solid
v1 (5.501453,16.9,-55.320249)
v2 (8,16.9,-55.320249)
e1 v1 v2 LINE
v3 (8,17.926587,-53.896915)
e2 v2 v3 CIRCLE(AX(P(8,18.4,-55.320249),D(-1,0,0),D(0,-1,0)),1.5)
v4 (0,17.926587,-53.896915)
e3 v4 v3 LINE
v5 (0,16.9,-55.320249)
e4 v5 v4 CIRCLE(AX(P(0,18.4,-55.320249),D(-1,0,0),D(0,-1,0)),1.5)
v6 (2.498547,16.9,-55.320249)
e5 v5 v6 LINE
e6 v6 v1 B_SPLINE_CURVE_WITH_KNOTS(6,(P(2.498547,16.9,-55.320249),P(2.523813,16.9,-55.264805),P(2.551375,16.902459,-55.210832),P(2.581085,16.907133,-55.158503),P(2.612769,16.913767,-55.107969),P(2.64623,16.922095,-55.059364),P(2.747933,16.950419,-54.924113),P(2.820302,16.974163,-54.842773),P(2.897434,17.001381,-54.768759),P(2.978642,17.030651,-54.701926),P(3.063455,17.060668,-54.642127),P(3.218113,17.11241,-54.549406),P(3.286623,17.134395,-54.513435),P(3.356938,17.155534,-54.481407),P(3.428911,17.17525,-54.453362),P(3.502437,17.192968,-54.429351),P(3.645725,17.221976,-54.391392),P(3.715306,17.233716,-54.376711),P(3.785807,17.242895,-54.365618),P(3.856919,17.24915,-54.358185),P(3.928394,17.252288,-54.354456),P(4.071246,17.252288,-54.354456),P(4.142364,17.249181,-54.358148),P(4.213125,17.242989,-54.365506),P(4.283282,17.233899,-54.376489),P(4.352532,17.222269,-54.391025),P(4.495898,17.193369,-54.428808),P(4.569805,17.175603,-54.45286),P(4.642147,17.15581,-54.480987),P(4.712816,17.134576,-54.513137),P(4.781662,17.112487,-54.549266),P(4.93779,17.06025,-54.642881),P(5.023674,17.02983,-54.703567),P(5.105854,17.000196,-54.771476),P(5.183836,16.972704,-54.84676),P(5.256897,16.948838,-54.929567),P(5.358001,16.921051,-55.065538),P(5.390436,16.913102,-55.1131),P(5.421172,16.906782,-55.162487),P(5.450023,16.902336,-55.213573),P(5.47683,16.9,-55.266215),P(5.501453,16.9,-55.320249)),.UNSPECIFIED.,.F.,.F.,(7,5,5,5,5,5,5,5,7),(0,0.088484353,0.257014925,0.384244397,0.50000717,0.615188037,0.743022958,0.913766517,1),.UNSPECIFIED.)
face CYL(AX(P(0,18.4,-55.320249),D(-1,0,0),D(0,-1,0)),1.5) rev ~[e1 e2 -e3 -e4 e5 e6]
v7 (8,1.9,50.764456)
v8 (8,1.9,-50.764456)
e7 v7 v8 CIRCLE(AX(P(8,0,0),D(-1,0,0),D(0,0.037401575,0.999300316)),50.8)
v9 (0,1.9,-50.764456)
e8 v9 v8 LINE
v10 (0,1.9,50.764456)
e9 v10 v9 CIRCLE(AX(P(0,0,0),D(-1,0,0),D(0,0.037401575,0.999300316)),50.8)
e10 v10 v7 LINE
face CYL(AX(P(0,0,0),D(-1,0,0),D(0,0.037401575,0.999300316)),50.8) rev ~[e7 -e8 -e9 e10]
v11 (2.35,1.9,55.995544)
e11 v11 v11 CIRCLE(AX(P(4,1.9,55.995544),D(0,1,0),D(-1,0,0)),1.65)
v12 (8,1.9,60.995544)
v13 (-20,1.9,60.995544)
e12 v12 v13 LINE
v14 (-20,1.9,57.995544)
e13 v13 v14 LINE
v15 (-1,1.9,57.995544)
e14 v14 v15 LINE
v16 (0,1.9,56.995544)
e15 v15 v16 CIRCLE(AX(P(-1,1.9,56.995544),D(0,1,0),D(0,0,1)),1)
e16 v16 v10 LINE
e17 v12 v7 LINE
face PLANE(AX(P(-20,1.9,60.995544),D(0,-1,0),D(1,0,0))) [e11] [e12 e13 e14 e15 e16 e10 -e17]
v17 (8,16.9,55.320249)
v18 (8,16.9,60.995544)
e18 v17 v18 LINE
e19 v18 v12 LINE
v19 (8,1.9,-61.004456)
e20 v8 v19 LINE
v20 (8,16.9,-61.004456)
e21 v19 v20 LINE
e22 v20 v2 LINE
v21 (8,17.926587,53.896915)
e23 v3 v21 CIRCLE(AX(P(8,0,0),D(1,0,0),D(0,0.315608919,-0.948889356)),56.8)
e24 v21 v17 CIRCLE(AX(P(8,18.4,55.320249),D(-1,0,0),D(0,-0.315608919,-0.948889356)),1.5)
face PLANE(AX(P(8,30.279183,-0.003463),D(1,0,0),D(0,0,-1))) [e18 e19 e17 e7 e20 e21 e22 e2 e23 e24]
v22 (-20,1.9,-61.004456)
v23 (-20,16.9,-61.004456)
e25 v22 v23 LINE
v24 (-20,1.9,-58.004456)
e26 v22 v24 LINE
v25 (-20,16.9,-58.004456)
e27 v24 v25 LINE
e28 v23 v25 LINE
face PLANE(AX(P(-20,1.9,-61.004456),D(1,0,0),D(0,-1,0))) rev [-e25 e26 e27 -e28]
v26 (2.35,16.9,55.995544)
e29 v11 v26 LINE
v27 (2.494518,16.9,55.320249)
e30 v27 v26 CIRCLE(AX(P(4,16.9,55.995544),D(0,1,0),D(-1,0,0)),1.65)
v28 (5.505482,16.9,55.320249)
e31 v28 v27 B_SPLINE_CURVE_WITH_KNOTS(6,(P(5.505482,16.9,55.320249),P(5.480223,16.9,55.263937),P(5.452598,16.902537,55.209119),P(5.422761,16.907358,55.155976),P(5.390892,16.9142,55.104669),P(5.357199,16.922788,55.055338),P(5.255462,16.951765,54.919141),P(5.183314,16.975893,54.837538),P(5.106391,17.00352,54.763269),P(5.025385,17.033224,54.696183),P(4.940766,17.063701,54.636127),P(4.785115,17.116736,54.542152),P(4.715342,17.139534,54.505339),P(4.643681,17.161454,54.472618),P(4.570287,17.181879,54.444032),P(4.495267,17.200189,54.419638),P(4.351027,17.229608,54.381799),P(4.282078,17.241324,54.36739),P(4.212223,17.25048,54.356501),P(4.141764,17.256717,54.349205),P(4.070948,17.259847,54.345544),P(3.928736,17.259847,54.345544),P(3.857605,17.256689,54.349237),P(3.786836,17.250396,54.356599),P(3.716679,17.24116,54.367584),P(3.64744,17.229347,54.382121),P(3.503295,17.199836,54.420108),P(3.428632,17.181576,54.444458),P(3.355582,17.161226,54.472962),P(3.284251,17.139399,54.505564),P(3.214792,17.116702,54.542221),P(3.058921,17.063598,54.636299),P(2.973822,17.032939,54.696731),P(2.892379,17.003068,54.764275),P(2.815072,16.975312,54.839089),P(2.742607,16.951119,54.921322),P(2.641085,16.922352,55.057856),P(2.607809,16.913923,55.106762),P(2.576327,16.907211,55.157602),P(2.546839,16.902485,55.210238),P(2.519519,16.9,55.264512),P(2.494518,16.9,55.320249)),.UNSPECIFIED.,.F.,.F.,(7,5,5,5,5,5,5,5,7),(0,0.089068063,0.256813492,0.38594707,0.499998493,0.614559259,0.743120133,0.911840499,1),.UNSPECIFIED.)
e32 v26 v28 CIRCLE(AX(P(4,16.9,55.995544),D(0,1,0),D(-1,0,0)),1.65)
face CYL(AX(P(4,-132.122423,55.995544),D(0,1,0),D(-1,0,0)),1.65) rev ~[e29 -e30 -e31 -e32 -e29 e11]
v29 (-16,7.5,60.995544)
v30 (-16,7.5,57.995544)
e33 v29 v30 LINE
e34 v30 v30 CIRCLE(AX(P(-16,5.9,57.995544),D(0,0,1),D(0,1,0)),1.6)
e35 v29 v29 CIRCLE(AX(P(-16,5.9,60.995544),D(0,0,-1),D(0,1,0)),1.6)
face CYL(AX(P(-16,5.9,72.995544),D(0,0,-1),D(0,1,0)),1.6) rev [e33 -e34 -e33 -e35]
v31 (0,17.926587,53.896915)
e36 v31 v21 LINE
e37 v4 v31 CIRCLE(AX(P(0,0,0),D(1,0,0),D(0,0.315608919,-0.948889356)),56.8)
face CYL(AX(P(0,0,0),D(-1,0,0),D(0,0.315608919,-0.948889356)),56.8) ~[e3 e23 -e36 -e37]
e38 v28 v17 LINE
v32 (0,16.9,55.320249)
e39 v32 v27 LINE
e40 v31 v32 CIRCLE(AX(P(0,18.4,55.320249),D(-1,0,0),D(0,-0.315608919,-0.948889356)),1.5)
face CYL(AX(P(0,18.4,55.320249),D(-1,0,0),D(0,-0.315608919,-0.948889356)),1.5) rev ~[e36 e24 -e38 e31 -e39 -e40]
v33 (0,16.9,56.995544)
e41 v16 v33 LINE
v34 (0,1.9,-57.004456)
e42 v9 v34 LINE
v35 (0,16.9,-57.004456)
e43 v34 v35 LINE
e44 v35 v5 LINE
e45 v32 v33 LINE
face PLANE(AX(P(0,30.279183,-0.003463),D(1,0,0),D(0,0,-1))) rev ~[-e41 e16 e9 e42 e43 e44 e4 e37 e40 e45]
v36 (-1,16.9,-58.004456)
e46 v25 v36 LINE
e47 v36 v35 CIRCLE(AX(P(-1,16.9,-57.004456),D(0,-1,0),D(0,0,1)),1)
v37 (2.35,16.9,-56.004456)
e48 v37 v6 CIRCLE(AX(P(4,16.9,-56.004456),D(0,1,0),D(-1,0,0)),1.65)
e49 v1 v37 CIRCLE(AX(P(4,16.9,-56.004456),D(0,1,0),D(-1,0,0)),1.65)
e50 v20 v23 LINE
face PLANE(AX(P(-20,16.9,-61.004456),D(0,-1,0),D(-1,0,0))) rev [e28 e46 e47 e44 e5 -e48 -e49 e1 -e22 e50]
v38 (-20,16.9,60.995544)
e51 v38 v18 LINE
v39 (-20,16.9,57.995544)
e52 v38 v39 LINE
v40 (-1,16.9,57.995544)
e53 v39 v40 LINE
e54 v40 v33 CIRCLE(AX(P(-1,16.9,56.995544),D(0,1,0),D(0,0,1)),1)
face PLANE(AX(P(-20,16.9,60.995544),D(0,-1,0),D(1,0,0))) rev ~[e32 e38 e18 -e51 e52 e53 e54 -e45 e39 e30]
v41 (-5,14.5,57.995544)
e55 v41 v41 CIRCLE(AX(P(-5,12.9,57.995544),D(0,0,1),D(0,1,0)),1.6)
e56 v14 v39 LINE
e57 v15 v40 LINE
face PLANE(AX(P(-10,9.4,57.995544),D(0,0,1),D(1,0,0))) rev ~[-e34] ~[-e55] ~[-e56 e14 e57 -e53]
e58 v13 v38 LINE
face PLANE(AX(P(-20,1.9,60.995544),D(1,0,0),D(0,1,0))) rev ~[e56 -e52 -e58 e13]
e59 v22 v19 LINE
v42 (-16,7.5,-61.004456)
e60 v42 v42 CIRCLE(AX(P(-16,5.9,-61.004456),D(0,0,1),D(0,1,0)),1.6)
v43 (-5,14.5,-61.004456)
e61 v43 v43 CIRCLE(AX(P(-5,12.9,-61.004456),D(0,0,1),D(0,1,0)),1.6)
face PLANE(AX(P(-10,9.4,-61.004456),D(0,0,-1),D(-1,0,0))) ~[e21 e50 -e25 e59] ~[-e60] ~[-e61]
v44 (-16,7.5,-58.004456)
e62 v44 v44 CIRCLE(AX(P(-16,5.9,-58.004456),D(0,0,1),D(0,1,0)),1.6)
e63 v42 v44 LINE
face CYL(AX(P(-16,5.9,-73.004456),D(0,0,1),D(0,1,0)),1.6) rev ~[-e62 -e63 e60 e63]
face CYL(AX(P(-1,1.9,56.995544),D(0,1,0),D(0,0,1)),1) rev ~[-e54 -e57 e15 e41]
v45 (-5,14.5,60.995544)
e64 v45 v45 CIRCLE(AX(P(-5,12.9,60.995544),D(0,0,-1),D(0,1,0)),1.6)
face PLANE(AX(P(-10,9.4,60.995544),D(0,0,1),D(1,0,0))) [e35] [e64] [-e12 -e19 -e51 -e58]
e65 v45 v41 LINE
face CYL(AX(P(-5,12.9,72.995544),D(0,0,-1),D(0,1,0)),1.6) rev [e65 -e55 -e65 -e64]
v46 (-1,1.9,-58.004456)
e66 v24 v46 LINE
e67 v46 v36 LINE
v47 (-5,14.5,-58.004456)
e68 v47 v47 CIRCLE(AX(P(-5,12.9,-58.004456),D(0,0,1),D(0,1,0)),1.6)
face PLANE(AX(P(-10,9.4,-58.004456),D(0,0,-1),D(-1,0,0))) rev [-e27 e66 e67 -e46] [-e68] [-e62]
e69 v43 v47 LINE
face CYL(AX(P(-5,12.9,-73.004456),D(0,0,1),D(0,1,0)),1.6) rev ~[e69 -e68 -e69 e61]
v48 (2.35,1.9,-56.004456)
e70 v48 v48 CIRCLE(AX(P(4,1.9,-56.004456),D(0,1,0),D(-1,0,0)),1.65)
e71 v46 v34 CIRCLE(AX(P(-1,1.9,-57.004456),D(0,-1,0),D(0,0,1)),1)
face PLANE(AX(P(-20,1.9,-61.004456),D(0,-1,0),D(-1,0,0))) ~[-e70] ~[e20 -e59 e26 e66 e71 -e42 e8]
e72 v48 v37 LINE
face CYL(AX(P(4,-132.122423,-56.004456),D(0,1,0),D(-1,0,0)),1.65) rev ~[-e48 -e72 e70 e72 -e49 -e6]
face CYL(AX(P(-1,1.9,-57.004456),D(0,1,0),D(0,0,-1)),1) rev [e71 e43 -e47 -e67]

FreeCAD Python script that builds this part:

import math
import FreeCAD as App
import Part
import Sketcher
from FreeCAD import Vector
Q = App.Units.Quantity


def edges_at(feature, points):
    """Names of the edges that pass closest to the given points."""
    edges = feature.Shape.Edges
    near = lambda p: min(range(len(edges)), key=lambda i: edges[i].distToShape(Part.Vertex(*p))[0])
    return sorted({f"Edge{near(p) + 1}" for p in points})


def add_polygon(sketch, points):
    """Adds a closed chain of lines whose ends are joined by coincident constraints."""
    first, n = sketch.GeometryCount, len(points)
    for a, b in zip(points, points[1:] + points[:1]):
        sketch.addGeometry(Part.LineSegment(App.Vector(*a, 0), App.Vector(*b, 0)), False)
    for i in range(n):
        sketch.addConstraint(Sketcher.Constraint("Coincident", first + i, 2, first + (i + 1) % n, 1))

doc = App.newDocument("Part")
body = doc.addObject("PartDesign::Body", "Body")

# Sketch on YZ plane
sketch1 = body.newObject("Sketcher::SketchObject", "Sketch")
sketch1.AttachmentSupport = (doc.getObject("YZ_Plane"), [""])
sketch1.MapMode = "FlatFace"
sketch1.addGeometry([
    Part.LineSegment(Vector(1.9, 60.995544, 0), Vector(1.9, 50.764456, 0)),  # 0
    Part.ArcOfCircle(Part.Circle(Vector(0, 0, 0), Vector(0, 0, 1), 50.8), math.radians(-87.856548), math.radians(87.856548)),  # 1
    Part.LineSegment(Vector(1.9, -50.764456, 0), Vector(1.9, -61.004456, 0)),  # 2
    Part.LineSegment(Vector(1.9, -61.004456, 0), Vector(16.9, -61.004456, 0)),  # 3
    Part.LineSegment(Vector(16.9, -61.004456, 0), Vector(16.9, -55.320249, 0)),  # 4
    Part.ArcOfCircle(Part.Circle(Vector(18.4, -55.320249, 0), Vector(0, 0, 1), 1.5), math.radians(108.397578), math.radians(180)),  # 5
    Part.ArcOfCircle(Part.Circle(Vector(0, 0, 0), Vector(0, 0, 1), 56.8), math.radians(-71.602422), math.radians(71.602422)),  # 6
    Part.ArcOfCircle(Part.Circle(Vector(18.4, 55.320249, 0), Vector(0, 0, 1), 1.5), math.radians(180), math.radians(251.602422)),  # 7
    Part.LineSegment(Vector(16.9, 55.320249, 0), Vector(16.9, 60.995544, 0)),  # 8
    Part.LineSegment(Vector(16.9, 60.995544, 0), Vector(1.9, 60.995544, 0)),  # 9
], False)
sketch1.addConstraint([
    Sketcher.Constraint("Coincident", 0, 2, 1, 2),
    Sketcher.Constraint("Coincident", 1, 1, 2, 1),
    Sketcher.Constraint("Coincident", 2, 2, 3, 1),
    Sketcher.Constraint("Coincident", 3, 2, 4, 1),
    Sketcher.Constraint("Tangent", 4, 2, 5, 2),
    Sketcher.Constraint("Tangent", 5, 1, 6, 1),
    Sketcher.Constraint("Tangent", 6, 2, 7, 2),
    Sketcher.Constraint("Tangent", 7, 1, 8, 1),
    Sketcher.Constraint("Coincident", 8, 2, 9, 1),
    Sketcher.Constraint("Coincident", 9, 2, 0, 1),
    Sketcher.Constraint("Vertical", 0),
    Sketcher.Constraint("Vertical", 2),
    Sketcher.Constraint("Horizontal", 3),
    Sketcher.Constraint("Vertical", 4),
    Sketcher.Constraint("Vertical", 8),
    Sketcher.Constraint("Horizontal", 9),
    Sketcher.Constraint("Coincident", 1, 3, -1, 1),
    Sketcher.Constraint("Coincident", 6, 3, -1, 1),
    Sketcher.Constraint("Equal", 5, 7),
    Sketcher.Constraint("Vertical", 5, 3, 7, 3),
    Sketcher.Constraint("Vertical", 0, 2, 1, 1),
    Sketcher.Constraint("Radius", 1, Q("50.8 mm")),
    Sketcher.Constraint("Radius", 5, Q("1.5 mm")),
    Sketcher.Constraint("Radius", 6, Q("56.8 mm")),
    Sketcher.Constraint("DistanceX", 3, 1, 3, 2, Q("15 mm")),
    Sketcher.Constraint("DistanceY", 2, 2, 2, 1, Q("10.24 mm")),
    Sketcher.Constraint("DistanceX", -1, 1, 5, 3, Q("18.4 mm")),
    Sketcher.Constraint("DistanceY", 0, 2, 0, 1, Q("10.231088 mm")),
])
pad1 = body.newObject("PartDesign::Pad", "Pad")
pad1.Profile = sketch1
pad1.Length = 8

# Sketch on XZ plane
sketch2 = body.newObject("Sketcher::SketchObject", "Sketch001")
sketch2.AttachmentSupport = (doc.getObject("XZ_Plane"), [""])
sketch2.MapMode = "FlatFace"
sketch2.AttachmentOffset = App.Placement(Vector(0, 0, -1.9), App.Rotation())
sketch2.addGeometry([
    Part.Circle(Vector(4, -56.004456, 0), Vector(0, 0, 1), 1.65),
    Part.Circle(Vector(4, 55.995544, 0), Vector(0, 0, 1), 1.65),
], False)
sketch2.addConstraint([
    Sketcher.Constraint("Equal", 0, 1),
    Sketcher.Constraint("Vertical", 0, 3, 1, 3),
    Sketcher.Constraint("Diameter", 0, Q("3.3 mm")),
    Sketcher.Constraint("DistanceX", -1, 1, 0, 3, Q("4 mm")),
    Sketcher.Constraint("DistanceY", 0, 3, 1, 3, Q("112 mm")),
    Sketcher.Constraint("DistanceY", 0, 3, -1, 1, Q("56.004456 mm")),
])
doc.recompute()
hole = body.newObject("PartDesign::Hole", "Hole")
hole.Profile = sketch2
hole.ThreadType = "None"
hole.Diameter = 3.3
hole.DepthType = "ThroughAll"

# Sketch on XY plane
sketch3 = body.newObject("Sketcher::SketchObject", "Sketch002")
sketch3.AttachmentSupport = (doc.getObject("XY_Plane"), [""])
sketch3.MapMode = "FlatFace"
sketch3.AttachmentOffset = App.Placement(Vector(0, 0, 60.995544), App.Rotation())
add_polygon(sketch3, [(-20, 16.9), (-20, 1.9), (0, 1.9), (0, 16.9)])  # lines 0-3
sketch3.addConstraint([
    Sketcher.Constraint("Vertical", 0),
    Sketcher.Constraint("Horizontal", 1),
    Sketcher.Constraint("Vertical", 2),
    Sketcher.Constraint("Horizontal", 3),
    Sketcher.Constraint("PointOnObject", 1, 2, -2),
    Sketcher.Constraint("DistanceX", 1, 1, 1, 2, Q("20 mm")),
    Sketcher.Constraint("DistanceY", 0, 2, 0, 1, Q("15 mm")),
    Sketcher.Constraint("DistanceY", -1, 1, 0, 2, Q("1.9 mm")),
])
pad2 = body.newObject("PartDesign::Pad", "Pad001")
pad2.Profile = sketch3
pad2.Length = 3
pad2.Reversed = True
doc.recompute()

fillet = body.newObject("PartDesign::Fillet", "Fillet")
fillet.Base = (pad2, edges_at(pad2, [(0, 9.4, 57.996)]))
fillet.Radius = 1

# Sketch on YZ plane
sketch4 = body.newObject("Sketcher::SketchObject", "Sketch003")
sketch4.AttachmentSupport = (doc.getObject("YZ_Plane"), [""])
sketch4.MapMode = "FlatFace"
sketch4.AttachmentOffset = App.Placement(Vector(0, 0, -5), App.Rotation())
add_polygon(sketch4, [(12.9, 73.956921), (12.9, 57.995544), (14.5, 57.995544), (14.5, 72.995544)])  # lines 0-3
sketch4.addGeometry(Part.LineSegment(Vector(12.9, 57.995544, 0), Vector(12.9, 73.956921, 0)), True)  # axis
sketch4.addConstraint([
    Sketcher.Constraint("Vertical", 0),
    Sketcher.Constraint("Horizontal", 1),
    Sketcher.Constraint("Vertical", 2),
    Sketcher.Constraint("Vertical", 4),
    Sketcher.Constraint("Coincident", 4, 1, 0, 2),
    Sketcher.Constraint("Equal", 0, 4),
    Sketcher.Constraint("DistanceY", 2, 1, 2, 2, Q("15 mm")),
    Sketcher.Constraint("Angle", 3, Q("149 deg")),
    Sketcher.Constraint("DistanceX", 1, 1, 1, 2, Q("1.6 mm")),
    Sketcher.Constraint("DistanceX", -1, 1, 0, 2, Q("12.9 mm")),
    Sketcher.Constraint("DistanceY", -1, 1, 3, 2, Q("73.956921 mm")),
])
groove = body.newObject("PartDesign::Groove", "Groove")
groove.Profile = sketch4
groove.ReferenceAxis = (sketch4, ["Axis0"])
groove.Angle = 360
doc.recompute()

datumline = body.newObject("PartDesign::Line", "DatumLine")
datumline.Placement = App.Placement(Vector(0, 0, 0), App.Rotation(Vector(0, 0, 1), Vector(-0.843661488, -0.536875492, 0)))
linearpattern = body.newObject("PartDesign::LinearPattern", "LinearPattern")
linearpattern.Originals = [groove]
linearpattern.Direction = (datumline, [""])
linearpattern.Mode = "offset"
linearpattern.Offset = 13.038405
linearpattern.Occurrences = 2
body.Tip = linearpattern
doc.recompute()

datumplane = body.newObject("PartDesign::Plane", "DatumPlane")
datumplane.AttachmentSupport = (doc.getObject("XY_Plane"), [""])
datumplane.MapMode = "FlatFace"
datumplane.AttachmentOffset = App.Placement(Vector(0, 0, -0.004456), App.Rotation())
mirrored = body.newObject("PartDesign::Mirrored", "Mirrored")
mirrored.Originals = [pad2, groove]
mirrored.MirrorPlane = (datumplane, [""])
body.Tip = mirrored

# Sketch on YZ plane
sketch5 = body.newObject("Sketcher::SketchObject", "Sketch004")
sketch5.AttachmentSupport = (doc.getObject("YZ_Plane"), [""])
sketch5.MapMode = "FlatFace"
sketch5.AttachmentOffset = App.Placement(Vector(0, 0, -16), App.Rotation())
add_polygon(sketch5, [(5.9, -58.004456), (5.9, -73.965833), (7.5, -73.004456), (7.5, -58.004456)])  # lines 0-3
sketch5.addGeometry(Part.LineSegment(Vector(5.9, -73.965833, 0), Vector(5.9, -58.004456, 0)), True)  # axis
sketch5.addConstraint([
    Sketcher.Constraint("Vertical", 0),
    Sketcher.Constraint("Vertical", 2),
    Sketcher.Constraint("Horizontal", 3),
    Sketcher.Constraint("Vertical", 4),
    Sketcher.Constraint("Coincident", 4, 1, 0, 2),
    Sketcher.Constraint("Horizontal", 2, 2, 4, 2),
    Sketcher.Constraint("DistanceY", 2, 1, 2, 2, Q("15 mm")),
    Sketcher.Constraint("Angle", 1, Q("31 deg")),
    Sketcher.Constraint("DistanceX", 3, 2, 3, 1, Q("1.6 mm")),
    Sketcher.Constraint("DistanceX", -1, 1, 0, 2, Q("5.9 mm")),
    Sketcher.Constraint("DistanceY", 0, 2, -1, 1, Q("73.965833 mm")),
])
groove2 = body.newObject("PartDesign::Groove", "Groove001")
groove2.Profile = sketch5
groove2.ReferenceAxis = (sketch5, ["Axis0"])
groove2.Angle = 360
doc.recompute()

fillet2 = body.newObject("PartDesign::Fillet", "Fillet001")
fillet2.Base = (groove2, edges_at(groove2, [(0, 9.4, -58.004)]))
fillet2.Radius = 1

doc.recompute()
